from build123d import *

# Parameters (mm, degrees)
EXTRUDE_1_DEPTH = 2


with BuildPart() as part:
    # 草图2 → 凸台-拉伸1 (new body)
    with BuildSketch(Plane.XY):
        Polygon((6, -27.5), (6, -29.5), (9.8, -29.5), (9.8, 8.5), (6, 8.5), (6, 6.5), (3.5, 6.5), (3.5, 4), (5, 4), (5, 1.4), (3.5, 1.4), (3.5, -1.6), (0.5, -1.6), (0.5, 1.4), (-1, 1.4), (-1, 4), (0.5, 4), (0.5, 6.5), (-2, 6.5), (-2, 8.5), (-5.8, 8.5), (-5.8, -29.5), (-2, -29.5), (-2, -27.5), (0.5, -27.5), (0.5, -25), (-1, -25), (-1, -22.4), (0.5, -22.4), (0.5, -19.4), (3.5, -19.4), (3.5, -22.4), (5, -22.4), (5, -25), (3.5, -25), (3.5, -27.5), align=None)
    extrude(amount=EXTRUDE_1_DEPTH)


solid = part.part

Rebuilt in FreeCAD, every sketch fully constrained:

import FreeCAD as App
import Part
import Sketcher

V = App.Vector


def add_polygon(sketch, points):
    """Adds a closed chain of lines whose ends are joined by coincident constraints."""
    first, n = sketch.GeometryCount, len(points)
    for a, b in zip(points, points[1:] + points[:1]):
        sketch.addGeometry(Part.LineSegment(App.Vector(*a, 0), App.Vector(*b, 0)), False)
    for i in range(n):
        sketch.addConstraint(Sketcher.Constraint("Coincident", first + i, 2, first + (i + 1) % n, 1))

doc = App.newDocument("Part")
body = doc.addObject("PartDesign::Body", "Body")

sketch1 = doc.addObject("Sketcher::SketchObject", "Sketch")
body.addObject(sketch1)
sketch1.AttachmentSupport = (doc.XY_Plane, [""])
sketch1.MapMode = "FlatFace"
add_polygon(sketch1, [(6, -27.5), (6, -29.5), (9.8, -29.5), (9.8, 8.5), (6, 8.5), (6, 6.5), (3.5, 6.5), (3.5, 4), (5, 4), (5, 1.4), (3.5, 1.4), (3.5, -1.6), (0.5, -1.6), (0.5, 1.4), (-1, 1.4), (-1, 4), (0.5, 4), (0.5, 6.5), (-2, 6.5), (-2, 8.5), (-5.8, 8.5), (-5.8, -29.5), (-2, -29.5), (-2, -27.5), (0.5, -27.5), (0.5, -25), (-1, -25), (-1, -22.4), (0.5, -22.4), (0.5, -19.4), (3.5, -19.4), (3.5, -22.4), (5, -22.4), (5, -25), (3.5, -25), (3.5, -27.5)])
sketch1.addConstraint([
    Sketcher.Constraint("Vertical", 0),
    Sketcher.Constraint("Horizontal", 1),
    Sketcher.Constraint("Vertical", 2),
    Sketcher.Constraint("Horizontal", 3),
    Sketcher.Constraint("Vertical", 4),
    Sketcher.Constraint("Horizontal", 5),
    Sketcher.Constraint("Vertical", 6),
    Sketcher.Constraint("Horizontal", 7),
    Sketcher.Constraint("Vertical", 8),
    Sketcher.Constraint("Horizontal", 9),
    Sketcher.Constraint("Vertical", 10),
    Sketcher.Constraint("Horizontal", 11),
    Sketcher.Constraint("Vertical", 12),
    Sketcher.Constraint("Horizontal", 13),
    Sketcher.Constraint("Vertical", 14),
    Sketcher.Constraint("Horizontal", 15),
    Sketcher.Constraint("Vertical", 16),
    Sketcher.Constraint("Horizontal", 17),
    Sketcher.Constraint("Vertical", 18),
    Sketcher.Constraint("Horizontal", 19),
    Sketcher.Constraint("Vertical", 20),
    Sketcher.Constraint("Horizontal", 21),
    Sketcher.Constraint("Vertical", 22),
    Sketcher.Constraint("Horizontal", 23),
    Sketcher.Constraint("Vertical", 24),
    Sketcher.Constraint("Horizontal", 25),
    Sketcher.Constraint("Vertical", 26),
    Sketcher.Constraint("Horizontal", 27),
    Sketcher.Constraint("Vertical", 28),
    Sketcher.Constraint("Horizontal", 29),
    Sketcher.Constraint("Vertical", 30),
    Sketcher.Constraint("Horizontal", 31),
    Sketcher.Constraint("Vertical", 32),
    Sketcher.Constraint("Horizontal", 33),
    Sketcher.Constraint("Vertical", 34),
    Sketcher.Constraint("Horizontal", 35),
    Sketcher.Constraint("Horizontal", 9, 2, 12, 2),
    Sketcher.Constraint("Horizontal", 7, 2, 14, 2),
    Sketcher.Constraint("Horizontal", 5, 2, 16, 2),
    Sketcher.Constraint("Horizontal", 3, 2, 18, 2),
    Sketcher.Constraint("Horizontal", 1, 2, 20, 2),
    Sketcher.Constraint("Horizontal", 27, 2, 30, 2),
    Sketcher.Constraint("Horizontal", 25, 2, 32, 2),
    Sketcher.Constraint("Horizontal", 23, 2, 34, 2),
    Sketcher.Constraint("Vertical", 0, 2, 3, 2),
    Sketcher.Constraint("Vertical", 6, 2, 9, 2),
    Sketcher.Constraint("Vertical", 12, 2, 15, 2),
    Sketcher.Constraint("Vertical", 18, 2, 21, 2),
    Sketcher.Constraint("Vertical", 16, 2, 23, 2),
    Sketcher.Constraint("Vertical", 14, 2, 25, 2),
    Sketcher.Constraint("Vertical", 24, 2, 27, 2),
    Sketcher.Constraint("Vertical", 10, 2, 29, 2),
    Sketcher.Constraint("Vertical", 8, 2, 31, 2),
    Sketcher.Constraint("Vertical", 30, 2, 33, 2),
    Sketcher.Constraint("Equal", 9, 13),
    Sketcher.Constraint("Equal", 5, 17),
    Sketcher.Constraint("Equal", 3, 19),
    Sketcher.Constraint("Equal", 0, 4),
    Sketcher.Constraint("Equal", 35, 6),
    Sketcher.Constraint("Equal", 29, 10),
    Sketcher.Constraint("Equal", 16, 24),
    Sketcher.Constraint("Equal", 14, 26),
    Sketcher.Constraint("Equal", 12, 28),
    Sketcher.Constraint("DistanceX", 11, 2, 11, 1, 3.0),
    Sketcher.Constraint("DistanceY", 0, 2, 0, 1, 2.0),
    Sketcher.Constraint("DistanceY", 2, 1, 2, 2, 38.0),
    Sketcher.Constraint("DistanceX", 1, 1, 1, 2, 3.8),
    Sketcher.Constraint("DistanceX", 5, 2, 5, 1, 2.5),
    Sketcher.Constraint("DistanceX", 7, 1, 7, 2, 1.5),
    Sketcher.Constraint("DistanceY", 8, 2, 8, 1, 2.6),
    Sketcher.Constraint("DistanceX", -1, 1, 0, 2, 6.0),
    Sketcher.Constraint("DistanceY", -1, 1, 6, 2, 4.0),
])
pad1 = doc.addObject("PartDesign::Pad", "Pad")
body.addObject(pad1)
pad1.Profile = sketch1
pad1.Length = 2

doc.recompute()
